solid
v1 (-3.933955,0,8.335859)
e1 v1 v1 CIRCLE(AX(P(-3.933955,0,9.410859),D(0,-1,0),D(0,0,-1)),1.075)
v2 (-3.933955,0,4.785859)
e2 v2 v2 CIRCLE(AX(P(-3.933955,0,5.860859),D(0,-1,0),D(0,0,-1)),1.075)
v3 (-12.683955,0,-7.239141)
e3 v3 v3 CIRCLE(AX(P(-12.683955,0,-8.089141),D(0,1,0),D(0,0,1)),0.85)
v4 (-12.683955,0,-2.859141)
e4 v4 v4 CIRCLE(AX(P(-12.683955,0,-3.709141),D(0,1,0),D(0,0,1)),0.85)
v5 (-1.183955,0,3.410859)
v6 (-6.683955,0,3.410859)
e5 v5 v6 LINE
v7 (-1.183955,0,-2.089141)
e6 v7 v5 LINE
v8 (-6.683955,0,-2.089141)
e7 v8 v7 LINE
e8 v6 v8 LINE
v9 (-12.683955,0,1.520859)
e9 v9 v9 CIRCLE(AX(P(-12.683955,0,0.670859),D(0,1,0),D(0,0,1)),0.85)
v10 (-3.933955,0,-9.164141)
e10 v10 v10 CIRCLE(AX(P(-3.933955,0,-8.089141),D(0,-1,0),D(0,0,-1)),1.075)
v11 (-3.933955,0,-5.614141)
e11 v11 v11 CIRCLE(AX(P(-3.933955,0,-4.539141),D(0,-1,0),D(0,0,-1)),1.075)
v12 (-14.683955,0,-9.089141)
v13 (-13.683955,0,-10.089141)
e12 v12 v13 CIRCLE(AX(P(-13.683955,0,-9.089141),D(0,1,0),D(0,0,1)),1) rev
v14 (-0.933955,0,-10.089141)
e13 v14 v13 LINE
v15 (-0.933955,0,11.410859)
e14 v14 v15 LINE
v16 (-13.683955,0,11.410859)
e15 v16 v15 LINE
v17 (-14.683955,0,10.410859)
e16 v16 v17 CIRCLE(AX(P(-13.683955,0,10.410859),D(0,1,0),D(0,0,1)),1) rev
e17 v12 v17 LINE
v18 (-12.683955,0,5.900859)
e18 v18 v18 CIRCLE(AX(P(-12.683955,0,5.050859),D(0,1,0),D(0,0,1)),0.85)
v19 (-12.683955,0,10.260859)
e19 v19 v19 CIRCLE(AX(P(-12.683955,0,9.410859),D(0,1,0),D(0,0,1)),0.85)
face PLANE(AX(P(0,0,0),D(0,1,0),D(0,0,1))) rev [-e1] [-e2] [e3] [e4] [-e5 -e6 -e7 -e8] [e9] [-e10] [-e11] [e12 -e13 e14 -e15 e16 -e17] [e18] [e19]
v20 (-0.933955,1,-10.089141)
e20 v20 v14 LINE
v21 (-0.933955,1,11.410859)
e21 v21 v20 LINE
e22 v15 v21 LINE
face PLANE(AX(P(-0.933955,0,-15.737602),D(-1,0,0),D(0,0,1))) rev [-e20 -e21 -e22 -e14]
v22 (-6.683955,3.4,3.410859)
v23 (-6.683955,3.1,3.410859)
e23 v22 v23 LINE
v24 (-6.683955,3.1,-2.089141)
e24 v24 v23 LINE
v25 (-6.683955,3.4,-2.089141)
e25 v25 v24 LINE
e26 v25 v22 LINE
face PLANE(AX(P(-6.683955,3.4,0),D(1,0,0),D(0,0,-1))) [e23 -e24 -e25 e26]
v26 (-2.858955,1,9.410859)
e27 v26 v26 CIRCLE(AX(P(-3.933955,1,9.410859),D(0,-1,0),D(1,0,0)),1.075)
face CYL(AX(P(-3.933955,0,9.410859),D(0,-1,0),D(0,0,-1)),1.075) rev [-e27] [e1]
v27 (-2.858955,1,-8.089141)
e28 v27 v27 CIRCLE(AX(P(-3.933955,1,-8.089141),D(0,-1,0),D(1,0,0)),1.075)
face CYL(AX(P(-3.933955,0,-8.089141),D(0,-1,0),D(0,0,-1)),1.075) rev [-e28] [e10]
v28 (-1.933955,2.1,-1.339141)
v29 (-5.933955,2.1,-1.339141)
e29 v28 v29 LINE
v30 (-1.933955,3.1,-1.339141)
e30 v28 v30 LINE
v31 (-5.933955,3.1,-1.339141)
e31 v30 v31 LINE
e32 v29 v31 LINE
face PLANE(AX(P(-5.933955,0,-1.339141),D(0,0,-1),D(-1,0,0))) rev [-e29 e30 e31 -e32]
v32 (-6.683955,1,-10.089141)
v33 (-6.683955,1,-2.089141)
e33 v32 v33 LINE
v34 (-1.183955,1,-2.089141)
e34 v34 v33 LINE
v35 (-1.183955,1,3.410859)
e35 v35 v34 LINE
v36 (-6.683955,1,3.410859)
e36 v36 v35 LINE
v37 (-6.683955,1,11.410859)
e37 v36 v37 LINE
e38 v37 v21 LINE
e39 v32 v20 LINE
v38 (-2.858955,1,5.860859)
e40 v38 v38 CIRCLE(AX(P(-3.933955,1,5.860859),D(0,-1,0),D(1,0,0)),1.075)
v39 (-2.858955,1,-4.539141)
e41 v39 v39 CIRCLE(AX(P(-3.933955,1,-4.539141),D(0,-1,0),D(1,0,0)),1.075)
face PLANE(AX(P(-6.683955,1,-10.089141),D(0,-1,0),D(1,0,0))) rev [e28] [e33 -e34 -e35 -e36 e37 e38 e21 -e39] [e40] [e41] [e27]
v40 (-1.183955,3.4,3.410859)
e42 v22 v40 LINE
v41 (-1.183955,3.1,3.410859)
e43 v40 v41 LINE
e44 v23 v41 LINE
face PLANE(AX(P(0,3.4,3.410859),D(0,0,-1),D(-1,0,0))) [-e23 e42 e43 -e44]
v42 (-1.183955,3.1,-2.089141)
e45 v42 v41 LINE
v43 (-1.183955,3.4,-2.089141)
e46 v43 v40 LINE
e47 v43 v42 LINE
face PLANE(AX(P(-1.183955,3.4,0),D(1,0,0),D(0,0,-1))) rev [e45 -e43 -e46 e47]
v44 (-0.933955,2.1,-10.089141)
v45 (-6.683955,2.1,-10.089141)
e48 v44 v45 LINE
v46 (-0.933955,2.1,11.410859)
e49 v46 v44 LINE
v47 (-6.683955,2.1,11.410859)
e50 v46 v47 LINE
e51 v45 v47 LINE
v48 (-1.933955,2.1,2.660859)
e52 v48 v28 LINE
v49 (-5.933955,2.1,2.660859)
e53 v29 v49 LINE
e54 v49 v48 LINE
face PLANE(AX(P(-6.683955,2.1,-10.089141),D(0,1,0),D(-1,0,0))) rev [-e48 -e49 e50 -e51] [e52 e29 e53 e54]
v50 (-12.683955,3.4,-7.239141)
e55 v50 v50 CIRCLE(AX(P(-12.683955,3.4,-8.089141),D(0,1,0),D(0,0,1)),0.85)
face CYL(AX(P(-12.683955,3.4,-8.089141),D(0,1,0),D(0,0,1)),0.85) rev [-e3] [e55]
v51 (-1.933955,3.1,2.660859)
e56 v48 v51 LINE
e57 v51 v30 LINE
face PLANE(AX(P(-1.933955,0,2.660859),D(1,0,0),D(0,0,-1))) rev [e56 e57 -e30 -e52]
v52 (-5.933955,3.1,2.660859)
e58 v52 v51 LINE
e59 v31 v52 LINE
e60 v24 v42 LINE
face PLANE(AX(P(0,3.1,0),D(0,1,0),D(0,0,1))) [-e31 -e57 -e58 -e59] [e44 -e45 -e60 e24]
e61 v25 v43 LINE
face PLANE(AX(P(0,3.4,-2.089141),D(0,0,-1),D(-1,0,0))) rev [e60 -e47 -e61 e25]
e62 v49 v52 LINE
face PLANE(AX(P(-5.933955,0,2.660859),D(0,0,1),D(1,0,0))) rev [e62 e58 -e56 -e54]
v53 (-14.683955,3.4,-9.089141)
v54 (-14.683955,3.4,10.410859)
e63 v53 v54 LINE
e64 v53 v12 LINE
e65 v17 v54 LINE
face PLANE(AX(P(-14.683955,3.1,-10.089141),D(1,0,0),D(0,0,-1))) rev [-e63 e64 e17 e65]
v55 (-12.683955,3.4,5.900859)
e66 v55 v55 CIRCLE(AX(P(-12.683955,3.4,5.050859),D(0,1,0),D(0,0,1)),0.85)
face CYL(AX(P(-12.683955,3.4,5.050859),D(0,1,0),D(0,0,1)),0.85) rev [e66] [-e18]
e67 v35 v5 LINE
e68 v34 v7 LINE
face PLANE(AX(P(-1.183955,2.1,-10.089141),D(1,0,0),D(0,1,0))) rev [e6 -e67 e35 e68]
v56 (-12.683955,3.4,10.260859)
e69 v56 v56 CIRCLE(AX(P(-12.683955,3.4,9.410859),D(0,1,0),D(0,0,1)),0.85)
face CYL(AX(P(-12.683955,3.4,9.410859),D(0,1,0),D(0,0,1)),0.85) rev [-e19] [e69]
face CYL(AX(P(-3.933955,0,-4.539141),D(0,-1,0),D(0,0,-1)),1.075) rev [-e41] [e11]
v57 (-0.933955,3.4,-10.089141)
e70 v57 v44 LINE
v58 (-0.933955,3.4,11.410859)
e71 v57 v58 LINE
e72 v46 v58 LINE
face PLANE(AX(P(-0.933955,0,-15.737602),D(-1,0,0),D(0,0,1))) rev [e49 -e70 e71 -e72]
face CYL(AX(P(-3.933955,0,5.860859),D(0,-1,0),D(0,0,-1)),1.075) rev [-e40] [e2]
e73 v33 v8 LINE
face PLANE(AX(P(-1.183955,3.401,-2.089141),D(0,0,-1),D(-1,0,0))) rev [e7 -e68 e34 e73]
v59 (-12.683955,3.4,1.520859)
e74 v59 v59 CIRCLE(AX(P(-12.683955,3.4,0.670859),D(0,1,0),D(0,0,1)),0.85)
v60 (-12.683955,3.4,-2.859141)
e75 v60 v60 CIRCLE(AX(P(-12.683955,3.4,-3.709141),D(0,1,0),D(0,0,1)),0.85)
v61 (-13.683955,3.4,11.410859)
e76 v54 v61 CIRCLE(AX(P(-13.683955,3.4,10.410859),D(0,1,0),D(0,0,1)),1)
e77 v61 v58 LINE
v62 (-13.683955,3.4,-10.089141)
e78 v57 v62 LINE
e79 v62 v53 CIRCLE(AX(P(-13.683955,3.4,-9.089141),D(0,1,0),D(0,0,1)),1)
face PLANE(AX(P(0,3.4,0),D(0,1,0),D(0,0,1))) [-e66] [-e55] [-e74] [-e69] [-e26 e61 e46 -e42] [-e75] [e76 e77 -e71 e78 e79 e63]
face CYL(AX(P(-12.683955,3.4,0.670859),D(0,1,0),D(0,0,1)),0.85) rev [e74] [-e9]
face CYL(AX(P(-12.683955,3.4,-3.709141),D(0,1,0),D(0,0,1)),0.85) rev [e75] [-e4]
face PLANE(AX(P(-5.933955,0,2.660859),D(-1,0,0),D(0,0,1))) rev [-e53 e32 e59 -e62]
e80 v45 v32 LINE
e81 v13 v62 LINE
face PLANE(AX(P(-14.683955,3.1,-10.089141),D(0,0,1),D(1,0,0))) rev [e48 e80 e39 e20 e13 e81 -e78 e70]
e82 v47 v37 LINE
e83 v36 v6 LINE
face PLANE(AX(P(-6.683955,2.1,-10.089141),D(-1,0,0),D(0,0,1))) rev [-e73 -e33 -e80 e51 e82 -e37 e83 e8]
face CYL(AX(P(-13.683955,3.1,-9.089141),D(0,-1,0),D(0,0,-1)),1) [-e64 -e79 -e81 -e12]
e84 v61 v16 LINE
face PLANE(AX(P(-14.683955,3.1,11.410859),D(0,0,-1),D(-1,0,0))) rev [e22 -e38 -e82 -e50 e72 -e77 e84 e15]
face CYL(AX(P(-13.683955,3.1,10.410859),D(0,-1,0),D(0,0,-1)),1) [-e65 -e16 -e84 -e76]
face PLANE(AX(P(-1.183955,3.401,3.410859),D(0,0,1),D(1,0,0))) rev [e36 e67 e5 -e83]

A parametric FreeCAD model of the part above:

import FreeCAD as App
import Part
import Sketcher
from FreeCAD import Vector


def edges_at(feature, points):
    """Names of the edges that pass closest to the given points."""
    edges = feature.Shape.Edges
    near = lambda p: min(range(len(edges)), key=lambda i: edges[i].distToShape(Part.Vertex(*p))[0])
    return sorted({f"Edge{near(p) + 1}" for p in points})


def add_polygon(sketch, points):
    """Adds a closed chain of lines whose ends are joined by coincident constraints."""
    first, n = sketch.GeometryCount, len(points)
    for a, b in zip(points, points[1:] + points[:1]):
        sketch.addGeometry(Part.LineSegment(App.Vector(*a, 0), App.Vector(*b, 0)), False)
    for i in range(n):
        sketch.addConstraint(Sketcher.Constraint("Coincident", first + i, 2, first + (i + 1) % n, 1))

doc = App.newDocument("Part")
body = doc.addObject("PartDesign::Body", "Body")

# Sketch on XZ plane
sketch1 = body.newObject("Sketcher::SketchObject", "Sketch")
sketch1.AttachmentSupport = (doc.getObject("XZ_Plane"), [""])
sketch1.MapMode = "FlatFace"
add_polygon(sketch1, [(-15, -10), (-15, 11), (7, 11), (7, -10)])  # lines 0-3
sketch1.addConstraint([
    Sketcher.Constraint("Vertical", 0),
    Sketcher.Constraint("Horizontal", 1),
    Sketcher.Constraint("Vertical", 2),
    Sketcher.Constraint("Horizontal", 3),
    Sketcher.Constraint("Equal", 3, 0),
    Sketcher.Constraint("DistanceX", 1, 1, 1, 2, 21.5),
    Sketcher.Constraint("DistanceY", -1, 1, 0, 2, 11.410859),
    Sketcher.Constraint("DistanceX", 0, 2, -1, 1, 14.683955),
])
pad1 = body.newObject("PartDesign::Pad", "Pad")
pad1.Profile = sketch1
pad1.Length = 3.1
pad1.Reversed = True

# Sketch on XY plane
sketch2 = body.newObject("Sketcher::SketchObject", "Sketch001")
sketch2.AttachmentSupport = (doc.getObject("XY_Plane"), [""])
sketch2.MapMode = "FlatFace"
sketch2.AttachmentOffset = App.Placement(Vector(0, 0, 11.410859), App.Rotation())
add_polygon(sketch2, [(-6.7, 2.1), (-6.7, 1), (-1.2, 1), (-1.2, 2.1)])  # lines 0-3
sketch2.addConstraint([
    Sketcher.Constraint("Vertical", 0),
    Sketcher.Constraint("Horizontal", 1),
    Sketcher.Constraint("Vertical", 2),
    Sketcher.Constraint("Horizontal", 3),
    Sketcher.Constraint("DistanceX", 1, 1, 1, 2, 5.5),
    Sketcher.Constraint("DistanceY", 0, 2, 0, 1, 1.1),
    Sketcher.Constraint("DistanceY", -1, 1, 0, 2, 1.0),
    Sketcher.Constraint("DistanceX", 0, 2, -1, 1, 6.683955),
])
pocket1 = body.newObject("PartDesign::Pocket", "Pocket")
pocket1.Profile = sketch2
pocket1.Type = "ThroughAll"

# Sketch on XZ plane
sketch3 = body.newObject("Sketcher::SketchObject", "Sketch002")
sketch3.AttachmentSupport = (doc.getObject("XZ_Plane"), [""])
sketch3.MapMode = "FlatFace"
sketch3.AttachmentOffset = App.Placement(Vector(0, 0, -3.1), App.Rotation())
add_polygon(sketch3, [(-15, -10), (-15, 11), (7, 11), (7, -10)])  # lines 0-3
add_polygon(sketch3, [(-1, 3), (-7, 3), (-7, -2), (-1, -2)])  # lines 4-7
sketch3.addConstraint([
    Sketcher.Constraint("Vertical", 0),
    Sketcher.Constraint("Horizontal", 1),
    Sketcher.Constraint("Vertical", 2),
    Sketcher.Constraint("Horizontal", 3),
    Sketcher.Constraint("Horizontal", 4),
    Sketcher.Constraint("Vertical", 5),
    Sketcher.Constraint("Horizontal", 6),
    Sketcher.Constraint("Vertical", 7),
    Sketcher.Constraint("Equal", 3, 0),
    Sketcher.Constraint("Equal", 6, 5),
    Sketcher.Constraint("DistanceX", 1, 1, 1, 2, 21.5),
    Sketcher.Constraint("DistanceX", 4, 2, 4, 1, 5.5),
    Sketcher.Constraint("DistanceX", 0, 2, 4, 2, 8.0),
    Sketcher.Constraint("DistanceY", 4, 2, 0, 2, 8.0),
    Sketcher.Constraint("DistanceY", -1, 1, 0, 2, 11.410859),
    Sketcher.Constraint("DistanceX", 0, 2, -1, 1, 14.683955),
])
pad2 = body.newObject("PartDesign::Pad", "Pad001")
pad2.Profile = sketch3
pad2.Length = 0.3
pad2.Reversed = True

# Sketch on XZ plane
sketch4 = body.newObject("Sketcher::SketchObject", "Sketch003")
sketch4.AttachmentSupport = (doc.getObject("XZ_Plane"), [""])
sketch4.MapMode = "FlatFace"
sketch4.AttachmentOffset = App.Placement(Vector(0, 0, -3.1), App.Rotation())
add_polygon(sketch4, [(-5.9, -1.3), (-5.9, 2.7), (-1.9, 2.7), (-1.9, -1.3)])  # lines 0-3
sketch4.addConstraint([
    Sketcher.Constraint("Vertical", 0),
    Sketcher.Constraint("Horizontal", 1),
    Sketcher.Constraint("Vertical", 2),
    Sketcher.Constraint("Horizontal", 3),
    Sketcher.Constraint("Equal", 3, 0),
    Sketcher.Constraint("DistanceX", 1, 1, 1, 2, 4.0),
    Sketcher.Constraint("DistanceY", -1, 1, 0, 2, 2.660859),
    Sketcher.Constraint("DistanceX", 0, 2, -1, 1, 5.933955),
])
pocket2 = body.newObject("PartDesign::Pocket", "Pocket001")
pocket2.Profile = sketch4
pocket2.Type = "ThroughAll"
pocket2.Reversed = True

# Sketch on XZ plane
sketch5 = body.newObject("Sketcher::SketchObject", "Sketch004")
sketch5.AttachmentSupport = (doc.getObject("XZ_Plane"), [""])
sketch5.MapMode = "FlatFace"
sketch5.AttachmentOffset = App.Placement(Vector(0, 0, -3.4), App.Rotation())
sketch5.addGeometry([
    Part.Circle(Vector(-12.7, -8.1, 0), Vector(0, 0, 1), 0.8),  # 0
    Part.Circle(Vector(4.8, -8.1, 0), Vector(0, 0, 1), 0.8),  # 1
    Part.Circle(Vector(4.8, 9.4, 0), Vector(0, 0, 1), 0.8),  # 2
    Part.Circle(Vector(-12.7, 9.4, 0), Vector(0, 0, 1), 0.8),  # 3
    Part.Circle(Vector(-12.7, -3.7, 0), Vector(0, 0, 1), 0.8),  # 4
    Part.Circle(Vector(-12.7, 0.7, 0), Vector(0, 0, 1), 0.8),  # 5
    Part.Circle(Vector(-12.7, 5.1, 0), Vector(0, 0, 1), 0.8),  # 6
], False)
sketch5.addConstraint([
    Sketcher.Constraint("Equal", 0, 1),
    Sketcher.Constraint("Equal", 1, 2),
    Sketcher.Constraint("Equal", 2, 3),
    Sketcher.Constraint("Equal", 3, 4),
    Sketcher.Constraint("Equal", 4, 5),
    Sketcher.Constraint("Equal", 5, 6),
    Sketcher.Constraint("Horizontal", 0, 3, 1, 3),
    Sketcher.Constraint("Horizontal", 2, 3, 3, 3),
    Sketcher.Constraint("Vertical", 1, 3, 2, 3),
    Sketcher.Constraint("Vertical", 0, 3, 3, 3),
    Sketcher.Constraint("Vertical", 3, 3, 4, 3),
    Sketcher.Constraint("Vertical", 4, 3, 5, 3),
    Sketcher.Constraint("Vertical", 5, 3, 6, 3),
    Sketcher.Constraint("Diameter", 0, 1.7),
    Sketcher.Constraint("DistanceX", 0, 3, 1, 3, 17.5),
    Sketcher.Constraint("DistanceY", 1, 3, 2, 3, 17.5),
    Sketcher.Constraint("DistanceY", 0, 3, 4, 3, 4.38),
    Sketcher.Constraint("DistanceY", 4, 3, 5, 3, 4.38),
    Sketcher.Constraint("DistanceY", 6, 3, 3, 3, 4.36),
    Sketcher.Constraint("DistanceY", 0, 3, -1, 1, 8.089141),
    Sketcher.Constraint("DistanceX", 0, 3, -1, 1, 12.683955),
])
doc.recompute()
hole = body.newObject("PartDesign::Hole", "Hole")
hole.Profile = sketch5
hole.ThreadType = "None"
hole.Diameter = 1.7
hole.DepthType = "ThroughAll"
hole.Reversed = True

# Sketch on XZ plane
sketch6 = body.newObject("Sketcher::SketchObject", "Sketch005")
sketch6.AttachmentSupport = (doc.getObject("XZ_Plane"), [""])
sketch6.MapMode = "FlatFace"
sketch6.addGeometry([
    Part.Circle(Vector(-3.9, -8.1, 0), Vector(0, 0, 1), 1.1),
    Part.Circle(Vector(-3.9, 9.4, 0), Vector(0, 0, 1), 1.1),
    Part.Circle(Vector(-3.9, -4.5, 0), Vector(0, 0, 1), 1.1),
    Part.Circle(Vector(-3.9, 5.9, 0), Vector(0, 0, 1), 1.1),
], False)
sketch6.addConstraint([
    Sketcher.Constraint("Equal", 0, 1),
    Sketcher.Constraint("Equal", 1, 2),
    Sketcher.Constraint("Equal", 2, 3),
    Sketcher.Constraint("Vertical", 0, 3, 1, 3),
    Sketcher.Constraint("Vertical", 1, 3, 2, 3),
    Sketcher.Constraint("Vertical", 2, 3, 3, 3),
    Sketcher.Constraint("Diameter", 0, 2.15),
    Sketcher.Constraint("DistanceY", 0, 3, 1, 3, 17.5),
    Sketcher.Constraint("DistanceY", 2, 3, 3, 3, 10.4),
    Sketcher.Constraint("DistanceY", 0, 3, 2, 3, 3.55),
    Sketcher.Constraint("DistanceY", 0, 3, -1, 1, 8.089141),
    Sketcher.Constraint("DistanceX", 0, 3, -1, 1, 3.933955),
])
doc.recompute()
hole2 = body.newObject("PartDesign::Hole", "Hole001")
hole2.Profile = sketch6
hole2.ThreadType = "None"
hole2.Diameter = 2.15
hole2.DepthType = "Dimension"
hole2.Depth = 1
hole2.DrillPoint = "Flat"

# Sketch on XZ plane
sketch7 = body.newObject("Sketcher::SketchObject", "Sketch006")
sketch7.AttachmentSupport = (doc.getObject("XZ_Plane"), [""])
sketch7.MapMode = "FlatFace"
add_polygon(sketch7, [(-7, 3), (-7, -2), (-1, -2), (-1, 3)])  # lines 0-3
sketch7.addConstraint([
    Sketcher.Constraint("Vertical", 0),
    Sketcher.Constraint("Horizontal", 1),
    Sketcher.Constraint("Vertical", 2),
    Sketcher.Constraint("Horizontal", 3),
    Sketcher.Constraint("Equal", 3, 0),
    Sketcher.Constraint("DistanceX", 1, 1, 1, 2, 5.5),
    Sketcher.Constraint("DistanceY", 0, 2, -1, 1, 2.089141),
    Sketcher.Constraint("DistanceX", 0, 2, -1, 1, 6.683955),
])
pocket3 = body.newObject("PartDesign::Pocket", "Pocket002")
pocket3.Profile = sketch7
pocket3.Length = 1
doc.recompute()

fillet = body.newObject("PartDesign::Fillet", "Fillet")
fillet.Base = (pocket3, edges_at(pocket3, [
    (-14.684, 1.7, -10.089),
    (6.816, 1.7, -10.089),
    (6.816, 1.7, 11.411),
    (-14.684, 1.7, 11.411),
]))
fillet.Radius = 1

# Sketch on XZ plane
sketch8 = body.newObject("Sketcher::SketchObject", "Sketch007")
sketch8.AttachmentSupport = (doc.getObject("XZ_Plane"), [""])
sketch8.MapMode = "FlatFace"
sketch8.AttachmentOffset = App.Placement(Vector(0, 0, -3.4), App.Rotation())
add_polygon(sketch8, [(-1, -16), (-1, 20), (12, 20), (12, -16)])  # lines 0-3
sketch8.addConstraint([
    Sketcher.Constraint("Vertical", 0),
    Sketcher.Constraint("Horizontal", 1),
    Sketcher.Constraint("Vertical", 2),
    Sketcher.Constraint("Horizontal", 3),
    Sketcher.Constraint("DistanceX", -1, 1, 1, 2, 12.190601),
    Sketcher.Constraint("DistanceY", 2, 2, -1, 1, 15.737602),
    Sketcher.Constraint("DistanceX", 1, 1, 1, 2, 13.124555),
    Sketcher.Constraint("DistanceY", 0, 1, 0, 2, 35.298127),
])
pocket4 = body.newObject("PartDesign::Pocket", "Pocket003")
pocket4.Profile = sketch8
pocket4.Type = "ThroughAll"
pocket4.Reversed = True

# Sketch on XY plane
sketch9 = body.newObject("Sketcher::SketchObject", "Sketch008")
sketch9.AttachmentSupport = (doc.getObject("XY_Plane"), [""])
sketch9.MapMode = "FlatFace"
sketch9.AttachmentOffset = App.Placement(Vector(0, 0, -10.089141), App.Rotation())
add_polygon(sketch9, [(-0.93, 2.1), (-0.93, 1), (-1.18, 1), (-1.18, 2.1)])  # lines 0-3
sketch9.addConstraint([
    Sketcher.Constraint("Vertical", 0),
    Sketcher.Constraint("Horizontal", 1),
    Sketcher.Constraint("Vertical", 2),
    Sketcher.Constraint("Horizontal", 3),
    Sketcher.Constraint("DistanceY", 0, 2, 0, 1, 1.1),
    Sketcher.Constraint("DistanceY", -1, 1, 0, 2, 1.0),
    Sketcher.Constraint("DistanceX", 1, 2, 1, 1, 0.25),
    Sketcher.Constraint("DistanceX", 0, 2, -1, 1, 0.933955),
])
pocket5 = body.newObject("PartDesign::Pocket", "Pocket004")
pocket5.Profile = sketch9
pocket5.Type = "ThroughAll"
pocket5.Reversed = True

doc.recompute()
